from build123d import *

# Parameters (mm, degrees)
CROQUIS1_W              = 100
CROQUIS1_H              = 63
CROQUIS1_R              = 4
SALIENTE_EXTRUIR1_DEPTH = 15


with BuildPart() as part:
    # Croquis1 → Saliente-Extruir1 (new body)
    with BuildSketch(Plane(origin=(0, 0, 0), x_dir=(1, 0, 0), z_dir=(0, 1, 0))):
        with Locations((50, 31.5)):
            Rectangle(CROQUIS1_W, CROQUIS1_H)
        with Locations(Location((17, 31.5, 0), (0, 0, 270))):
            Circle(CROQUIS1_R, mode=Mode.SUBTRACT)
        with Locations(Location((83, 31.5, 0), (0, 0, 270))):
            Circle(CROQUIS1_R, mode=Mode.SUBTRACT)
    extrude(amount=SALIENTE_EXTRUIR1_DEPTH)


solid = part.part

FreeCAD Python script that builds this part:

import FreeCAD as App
import Part
import Sketcher
Q = App.Units.Quantity


def add_polygon(sketch, points):
    """Adds a closed chain of lines whose ends are joined by coincident constraints."""
    first, n = sketch.GeometryCount, len(points)
    for a, b in zip(points, points[1:] + points[:1]):
        sketch.addGeometry(Part.LineSegment(App.Vector(*a, 0), App.Vector(*b, 0)), False)
    for i in range(n):
        sketch.addConstraint(Sketcher.Constraint("Coincident", first + i, 2, first + (i + 1) % n, 1))

doc = App.newDocument("Part")
body = doc.addObject("PartDesign::Body", "Body")

# Sketch on XZ plane
sketch1 = body.newObject("Sketcher::SketchObject", "Sketch")
sketch1.AttachmentSupport = (doc.getObject("XZ_Plane"), [""])
sketch1.MapMode = "FlatFace"
add_polygon(sketch1, [(0, -63), (0, 0), (100, 0), (100, -63)])  # lines 0-3
sketch1.addGeometry(Part.Circle(App.Vector(17, -31.5, 0), App.Vector(0, 0, 1), 4), False)  # 4
sketch1.addGeometry(Part.Circle(App.Vector(83, -31.5, 0), App.Vector(0, 0, 1), 4), False)  # 5
sketch1.addConstraint(Sketcher.Constraint("Vertical", 0))
sketch1.addConstraint(Sketcher.Constraint("Horizontal", 1))
sketch1.addConstraint(Sketcher.Constraint("Vertical", 2))
sketch1.addConstraint(Sketcher.Constraint("Horizontal", 3))
sketch1.addConstraint(Sketcher.Constraint("Coincident", 0, 2, -1, 1))
sketch1.addConstraint(Sketcher.Constraint("Equal", 4, 5))
sketch1.addConstraint(Sketcher.Constraint("Horizontal", 4, 3, 5, 3))
sketch1.addConstraint(Sketcher.Constraint("Diameter", 4, Q("8 mm")))
sketch1.addConstraint(Sketcher.Constraint("DistanceX", 1, 1, 1, 2, Q("100 mm")))
sketch1.addConstraint(Sketcher.Constraint("DistanceY", 0, 1, 0, 2, Q("63 mm")))
sketch1.addConstraint(Sketcher.Constraint("DistanceX", -1, 1, 4, 3, Q("17 mm")))
sketch1.addConstraint(Sketcher.Constraint("DistanceX", -1, 1, 5, 3, Q("83 mm")))
sketch1.addConstraint(Sketcher.Constraint("DistanceY", 4, 3, -1, 1, Q("31.5 mm")))
pad1 = body.newObject("PartDesign::Pad", "Pad")
pad1.Profile = sketch1
pad1.Length = 15
pad1.Reversed = True

doc.recompute()
